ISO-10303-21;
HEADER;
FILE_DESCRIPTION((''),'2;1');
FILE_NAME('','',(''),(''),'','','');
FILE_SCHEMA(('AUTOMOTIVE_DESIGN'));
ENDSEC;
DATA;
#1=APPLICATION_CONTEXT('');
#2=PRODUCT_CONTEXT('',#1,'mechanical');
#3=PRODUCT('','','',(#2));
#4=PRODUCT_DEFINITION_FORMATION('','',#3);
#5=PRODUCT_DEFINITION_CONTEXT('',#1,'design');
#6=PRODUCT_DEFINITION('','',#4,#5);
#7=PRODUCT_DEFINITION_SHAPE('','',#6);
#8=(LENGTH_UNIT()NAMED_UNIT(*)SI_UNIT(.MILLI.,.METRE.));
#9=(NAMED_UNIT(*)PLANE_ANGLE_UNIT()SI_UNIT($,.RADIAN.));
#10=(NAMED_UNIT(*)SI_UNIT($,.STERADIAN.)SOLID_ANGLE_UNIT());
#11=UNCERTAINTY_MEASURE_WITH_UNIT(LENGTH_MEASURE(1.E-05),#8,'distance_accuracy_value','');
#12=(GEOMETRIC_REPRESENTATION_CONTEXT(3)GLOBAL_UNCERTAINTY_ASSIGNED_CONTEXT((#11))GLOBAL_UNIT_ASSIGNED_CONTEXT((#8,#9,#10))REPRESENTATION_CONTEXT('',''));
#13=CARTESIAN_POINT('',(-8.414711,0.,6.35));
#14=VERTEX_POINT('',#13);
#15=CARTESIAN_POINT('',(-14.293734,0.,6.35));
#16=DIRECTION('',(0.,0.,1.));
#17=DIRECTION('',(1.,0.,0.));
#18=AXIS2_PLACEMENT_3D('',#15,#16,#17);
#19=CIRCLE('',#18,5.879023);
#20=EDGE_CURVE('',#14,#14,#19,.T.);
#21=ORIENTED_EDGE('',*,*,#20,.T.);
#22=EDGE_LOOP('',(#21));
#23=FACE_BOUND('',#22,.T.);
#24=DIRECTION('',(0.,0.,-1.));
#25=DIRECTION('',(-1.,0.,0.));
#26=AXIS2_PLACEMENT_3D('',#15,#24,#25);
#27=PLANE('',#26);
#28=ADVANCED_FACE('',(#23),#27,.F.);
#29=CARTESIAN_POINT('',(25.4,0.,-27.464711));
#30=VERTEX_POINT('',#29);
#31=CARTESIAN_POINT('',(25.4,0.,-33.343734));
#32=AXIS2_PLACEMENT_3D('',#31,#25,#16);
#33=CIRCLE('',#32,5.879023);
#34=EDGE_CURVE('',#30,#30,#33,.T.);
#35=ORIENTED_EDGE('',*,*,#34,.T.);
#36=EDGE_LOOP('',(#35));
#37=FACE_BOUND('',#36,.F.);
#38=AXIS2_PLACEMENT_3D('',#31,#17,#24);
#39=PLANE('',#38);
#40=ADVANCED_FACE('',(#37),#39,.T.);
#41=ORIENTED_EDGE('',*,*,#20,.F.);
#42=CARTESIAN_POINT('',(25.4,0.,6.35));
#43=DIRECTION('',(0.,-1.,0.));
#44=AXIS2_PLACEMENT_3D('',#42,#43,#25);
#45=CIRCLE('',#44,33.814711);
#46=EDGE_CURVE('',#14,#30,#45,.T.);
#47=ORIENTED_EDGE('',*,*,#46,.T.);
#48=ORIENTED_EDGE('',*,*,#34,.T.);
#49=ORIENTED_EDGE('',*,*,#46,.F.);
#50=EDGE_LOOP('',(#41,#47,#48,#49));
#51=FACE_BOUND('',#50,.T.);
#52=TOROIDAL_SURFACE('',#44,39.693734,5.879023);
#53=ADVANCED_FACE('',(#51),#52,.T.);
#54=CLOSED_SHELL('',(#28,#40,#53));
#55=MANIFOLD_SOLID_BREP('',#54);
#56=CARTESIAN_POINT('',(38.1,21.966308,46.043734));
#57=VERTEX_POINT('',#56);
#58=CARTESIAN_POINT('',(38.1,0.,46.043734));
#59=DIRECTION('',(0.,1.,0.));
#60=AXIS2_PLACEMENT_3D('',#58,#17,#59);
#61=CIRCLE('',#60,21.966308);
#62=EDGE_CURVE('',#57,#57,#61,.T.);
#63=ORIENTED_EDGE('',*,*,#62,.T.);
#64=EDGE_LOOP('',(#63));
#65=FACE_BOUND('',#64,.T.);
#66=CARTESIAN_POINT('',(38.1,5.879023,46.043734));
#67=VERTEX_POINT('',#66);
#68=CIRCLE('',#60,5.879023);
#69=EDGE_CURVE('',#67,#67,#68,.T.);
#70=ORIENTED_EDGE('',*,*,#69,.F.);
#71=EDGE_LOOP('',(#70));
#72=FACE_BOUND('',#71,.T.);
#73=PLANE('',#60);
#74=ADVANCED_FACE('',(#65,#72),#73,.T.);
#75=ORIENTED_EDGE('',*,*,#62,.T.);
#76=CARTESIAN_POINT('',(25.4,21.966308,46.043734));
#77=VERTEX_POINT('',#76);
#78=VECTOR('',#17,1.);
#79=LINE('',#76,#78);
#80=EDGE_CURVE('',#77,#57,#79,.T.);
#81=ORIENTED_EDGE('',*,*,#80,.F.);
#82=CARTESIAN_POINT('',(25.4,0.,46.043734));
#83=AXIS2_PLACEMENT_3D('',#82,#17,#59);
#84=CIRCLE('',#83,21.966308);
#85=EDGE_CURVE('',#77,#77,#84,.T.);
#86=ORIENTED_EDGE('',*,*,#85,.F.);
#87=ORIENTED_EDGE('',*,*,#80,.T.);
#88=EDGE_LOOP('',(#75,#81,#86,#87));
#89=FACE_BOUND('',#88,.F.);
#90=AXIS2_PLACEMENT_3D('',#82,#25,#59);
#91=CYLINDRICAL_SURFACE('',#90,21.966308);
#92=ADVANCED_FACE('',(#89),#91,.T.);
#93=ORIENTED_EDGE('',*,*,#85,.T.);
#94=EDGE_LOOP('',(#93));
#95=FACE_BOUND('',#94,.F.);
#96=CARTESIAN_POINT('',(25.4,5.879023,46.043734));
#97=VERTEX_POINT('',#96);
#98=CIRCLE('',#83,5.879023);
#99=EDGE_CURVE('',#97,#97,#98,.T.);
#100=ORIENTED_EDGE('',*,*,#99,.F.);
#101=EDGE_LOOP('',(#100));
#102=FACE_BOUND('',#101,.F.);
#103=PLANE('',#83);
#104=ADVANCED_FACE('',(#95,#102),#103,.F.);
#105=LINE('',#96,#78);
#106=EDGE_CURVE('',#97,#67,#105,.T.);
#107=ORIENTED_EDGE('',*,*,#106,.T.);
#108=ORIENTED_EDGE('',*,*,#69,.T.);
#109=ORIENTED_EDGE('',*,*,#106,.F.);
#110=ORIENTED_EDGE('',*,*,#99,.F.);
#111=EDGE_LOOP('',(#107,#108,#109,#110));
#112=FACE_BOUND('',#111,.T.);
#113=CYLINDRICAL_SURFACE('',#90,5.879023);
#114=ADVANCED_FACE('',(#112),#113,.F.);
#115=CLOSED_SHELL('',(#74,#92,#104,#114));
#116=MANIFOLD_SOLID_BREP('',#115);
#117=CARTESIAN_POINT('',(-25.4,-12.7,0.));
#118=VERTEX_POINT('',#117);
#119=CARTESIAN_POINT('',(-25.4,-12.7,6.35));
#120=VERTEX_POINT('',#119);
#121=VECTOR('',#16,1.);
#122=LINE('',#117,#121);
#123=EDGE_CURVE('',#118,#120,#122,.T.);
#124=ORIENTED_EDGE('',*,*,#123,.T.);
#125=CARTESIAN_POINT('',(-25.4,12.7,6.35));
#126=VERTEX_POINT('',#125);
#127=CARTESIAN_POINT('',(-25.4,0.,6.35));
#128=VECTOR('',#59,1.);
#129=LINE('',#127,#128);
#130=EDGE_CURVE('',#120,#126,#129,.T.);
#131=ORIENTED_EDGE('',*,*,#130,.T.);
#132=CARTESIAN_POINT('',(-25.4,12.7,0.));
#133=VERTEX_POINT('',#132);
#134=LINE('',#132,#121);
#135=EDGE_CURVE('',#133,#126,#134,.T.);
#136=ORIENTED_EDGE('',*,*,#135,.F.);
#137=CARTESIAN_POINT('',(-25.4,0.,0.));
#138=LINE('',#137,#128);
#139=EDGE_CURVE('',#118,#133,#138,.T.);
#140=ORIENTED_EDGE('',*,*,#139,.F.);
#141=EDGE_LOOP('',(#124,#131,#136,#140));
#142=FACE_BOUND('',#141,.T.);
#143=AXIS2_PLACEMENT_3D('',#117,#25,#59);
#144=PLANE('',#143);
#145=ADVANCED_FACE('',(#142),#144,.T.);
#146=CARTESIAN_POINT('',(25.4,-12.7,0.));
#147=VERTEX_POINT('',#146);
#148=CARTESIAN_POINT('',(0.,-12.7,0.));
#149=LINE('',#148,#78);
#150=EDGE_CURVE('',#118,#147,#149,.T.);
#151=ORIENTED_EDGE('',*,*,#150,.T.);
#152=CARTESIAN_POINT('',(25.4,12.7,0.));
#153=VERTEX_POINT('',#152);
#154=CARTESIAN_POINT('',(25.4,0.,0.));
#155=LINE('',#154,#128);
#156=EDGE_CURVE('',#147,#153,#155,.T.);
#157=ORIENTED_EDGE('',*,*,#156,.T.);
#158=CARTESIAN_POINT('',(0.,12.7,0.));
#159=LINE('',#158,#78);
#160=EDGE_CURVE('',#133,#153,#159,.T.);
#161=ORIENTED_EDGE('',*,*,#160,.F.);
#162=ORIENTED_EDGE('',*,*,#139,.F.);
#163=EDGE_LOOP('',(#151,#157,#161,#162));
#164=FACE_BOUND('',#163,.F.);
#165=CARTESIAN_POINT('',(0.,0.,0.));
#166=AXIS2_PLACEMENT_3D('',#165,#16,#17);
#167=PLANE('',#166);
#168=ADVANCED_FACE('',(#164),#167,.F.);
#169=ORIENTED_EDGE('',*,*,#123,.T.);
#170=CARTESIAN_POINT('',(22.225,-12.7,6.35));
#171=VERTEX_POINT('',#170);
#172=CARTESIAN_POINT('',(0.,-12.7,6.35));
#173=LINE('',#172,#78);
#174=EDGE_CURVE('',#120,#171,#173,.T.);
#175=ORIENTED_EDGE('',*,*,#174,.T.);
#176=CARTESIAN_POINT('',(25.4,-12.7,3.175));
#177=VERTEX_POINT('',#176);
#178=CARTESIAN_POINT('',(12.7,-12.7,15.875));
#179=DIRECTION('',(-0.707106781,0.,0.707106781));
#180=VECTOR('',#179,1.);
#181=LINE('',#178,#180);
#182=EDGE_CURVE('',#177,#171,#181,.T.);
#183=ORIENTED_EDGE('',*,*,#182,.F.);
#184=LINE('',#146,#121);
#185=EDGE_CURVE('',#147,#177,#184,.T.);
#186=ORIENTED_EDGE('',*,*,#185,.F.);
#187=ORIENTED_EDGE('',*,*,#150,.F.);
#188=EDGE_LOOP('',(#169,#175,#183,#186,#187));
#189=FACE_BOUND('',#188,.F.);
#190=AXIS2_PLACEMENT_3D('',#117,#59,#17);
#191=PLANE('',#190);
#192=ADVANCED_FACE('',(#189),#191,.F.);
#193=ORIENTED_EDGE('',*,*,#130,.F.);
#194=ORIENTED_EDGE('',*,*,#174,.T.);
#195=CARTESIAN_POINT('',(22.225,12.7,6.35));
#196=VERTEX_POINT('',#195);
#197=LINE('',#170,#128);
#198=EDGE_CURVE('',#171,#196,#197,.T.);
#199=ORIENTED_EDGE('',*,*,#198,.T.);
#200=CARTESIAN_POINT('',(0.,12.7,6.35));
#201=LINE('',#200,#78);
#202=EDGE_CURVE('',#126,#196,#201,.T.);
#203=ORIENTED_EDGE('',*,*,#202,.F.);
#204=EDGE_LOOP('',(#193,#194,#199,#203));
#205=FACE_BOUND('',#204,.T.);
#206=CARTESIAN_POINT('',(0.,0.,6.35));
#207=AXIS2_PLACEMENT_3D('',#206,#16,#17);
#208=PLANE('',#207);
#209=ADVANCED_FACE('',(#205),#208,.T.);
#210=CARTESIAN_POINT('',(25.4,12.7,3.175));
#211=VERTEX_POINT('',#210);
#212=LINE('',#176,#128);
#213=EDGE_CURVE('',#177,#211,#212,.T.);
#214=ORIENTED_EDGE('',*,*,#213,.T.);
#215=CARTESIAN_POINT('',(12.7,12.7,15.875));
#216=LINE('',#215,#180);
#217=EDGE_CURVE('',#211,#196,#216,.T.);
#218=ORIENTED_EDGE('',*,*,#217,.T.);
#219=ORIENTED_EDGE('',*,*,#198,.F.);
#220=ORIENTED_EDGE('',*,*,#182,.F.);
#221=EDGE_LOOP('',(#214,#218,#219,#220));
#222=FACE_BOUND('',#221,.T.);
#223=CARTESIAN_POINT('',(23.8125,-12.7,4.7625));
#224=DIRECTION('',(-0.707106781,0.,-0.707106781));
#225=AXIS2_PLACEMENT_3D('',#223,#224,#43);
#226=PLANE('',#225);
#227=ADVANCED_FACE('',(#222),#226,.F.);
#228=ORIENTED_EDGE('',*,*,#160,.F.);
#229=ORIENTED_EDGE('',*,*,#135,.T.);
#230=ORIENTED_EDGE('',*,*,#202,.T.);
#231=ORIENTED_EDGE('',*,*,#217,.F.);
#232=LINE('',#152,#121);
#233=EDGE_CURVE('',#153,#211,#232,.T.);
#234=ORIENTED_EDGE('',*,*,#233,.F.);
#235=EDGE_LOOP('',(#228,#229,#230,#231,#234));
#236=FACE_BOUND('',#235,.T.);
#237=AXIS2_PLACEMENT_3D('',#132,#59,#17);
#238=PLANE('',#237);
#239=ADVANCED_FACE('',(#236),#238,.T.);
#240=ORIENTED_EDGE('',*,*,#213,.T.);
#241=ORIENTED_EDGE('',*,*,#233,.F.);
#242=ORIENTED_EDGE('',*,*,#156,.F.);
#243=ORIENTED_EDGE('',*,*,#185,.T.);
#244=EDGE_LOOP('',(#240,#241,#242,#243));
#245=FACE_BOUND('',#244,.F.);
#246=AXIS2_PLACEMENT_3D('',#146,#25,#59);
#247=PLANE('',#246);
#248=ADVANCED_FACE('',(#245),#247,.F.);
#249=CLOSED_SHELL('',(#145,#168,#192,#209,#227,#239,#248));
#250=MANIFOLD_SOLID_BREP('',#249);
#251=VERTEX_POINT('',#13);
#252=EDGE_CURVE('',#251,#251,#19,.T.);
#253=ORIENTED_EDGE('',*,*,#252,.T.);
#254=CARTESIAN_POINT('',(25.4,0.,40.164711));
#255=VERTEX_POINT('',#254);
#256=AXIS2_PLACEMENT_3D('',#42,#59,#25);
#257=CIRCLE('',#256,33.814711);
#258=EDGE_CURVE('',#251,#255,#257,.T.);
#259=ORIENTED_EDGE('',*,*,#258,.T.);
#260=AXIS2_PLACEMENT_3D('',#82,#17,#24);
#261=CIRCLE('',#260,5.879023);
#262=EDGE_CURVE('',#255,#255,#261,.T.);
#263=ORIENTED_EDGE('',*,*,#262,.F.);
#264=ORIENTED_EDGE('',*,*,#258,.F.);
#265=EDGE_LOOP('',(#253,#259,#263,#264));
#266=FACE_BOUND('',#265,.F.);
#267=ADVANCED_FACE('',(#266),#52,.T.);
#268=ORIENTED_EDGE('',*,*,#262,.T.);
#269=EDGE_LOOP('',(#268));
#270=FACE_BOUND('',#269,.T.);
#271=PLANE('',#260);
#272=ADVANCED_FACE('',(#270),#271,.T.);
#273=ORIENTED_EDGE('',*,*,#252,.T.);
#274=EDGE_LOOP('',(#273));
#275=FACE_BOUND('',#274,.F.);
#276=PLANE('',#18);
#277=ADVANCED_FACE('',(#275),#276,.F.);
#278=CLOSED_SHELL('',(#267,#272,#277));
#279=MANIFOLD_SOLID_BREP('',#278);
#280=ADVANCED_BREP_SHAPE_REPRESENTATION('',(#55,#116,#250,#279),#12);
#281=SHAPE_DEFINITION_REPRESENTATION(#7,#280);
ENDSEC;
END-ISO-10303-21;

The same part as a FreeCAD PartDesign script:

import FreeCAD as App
import Part
import Sketcher
Q = App.Units.Quantity


def edges_at(feature, points):
    """Names of the edges that pass closest to the given points."""
    edges = feature.Shape.Edges
    near = lambda p: min(range(len(edges)), key=lambda i: edges[i].distToShape(Part.Vertex(*p))[0])
    return sorted({f"Edge{near(p) + 1}" for p in points})

doc = App.newDocument("Part")
body = doc.addObject("PartDesign::Body", "Body")

# Sketch on XY plane
sketch1 = body.newObject("Sketcher::SketchObject", "Sketch")
sketch1.AttachmentSupport = (doc.getObject("XY_Plane"), [""])
sketch1.MapMode = "FlatFace"
sketch1.addGeometry(Part.LineSegment(App.Vector(-25, 13, 0), App.Vector(-25, -13, 0)), False)
sketch1.addGeometry(Part.LineSegment(App.Vector(-25, -13, 0), App.Vector(25, -13, 0)), False)
sketch1.addGeometry(Part.LineSegment(App.Vector(25, -13, 0), App.Vector(25, 13, 0)), False)
sketch1.addGeometry(Part.LineSegment(App.Vector(25, 13, 0), App.Vector(-25, 13, 0)), False)
sketch1.addConstraint(Sketcher.Constraint("Coincident", 0, 2, 1, 1))
sketch1.addConstraint(Sketcher.Constraint("Coincident", 1, 2, 2, 1))
sketch1.addConstraint(Sketcher.Constraint("Coincident", 2, 2, 3, 1))
sketch1.addConstraint(Sketcher.Constraint("Coincident", 3, 2, 0, 1))
sketch1.addConstraint(Sketcher.Constraint("Vertical", 0))
sketch1.addConstraint(Sketcher.Constraint("Horizontal", 1))
sketch1.addConstraint(Sketcher.Constraint("Vertical", 2))
sketch1.addConstraint(Sketcher.Constraint("Horizontal", 3))
sketch1.addConstraint(Sketcher.Constraint("Symmetric", 0, 2, 2, 2, -1, 1))
sketch1.addConstraint(Sketcher.Constraint("DistanceX", 1, 1, 1, 2, Q("2 in")))
sketch1.addConstraint(Sketcher.Constraint("DistanceY", 0, 2, 0, 1, Q("1 in")))
pad1 = body.newObject("PartDesign::Pad", "Pad")
pad1.Profile = sketch1
pad1.Length = Q("0.25 in")
doc.recompute()

chamfer = body.newObject("PartDesign::Chamfer", "Chamfer")
chamfer.Base = (pad1, edges_at(pad1, [(25.4, 0, 6.35)]))
chamfer.Size = Q("0.125 in")
body2 = doc.addObject("PartDesign::Body", "Body001")

# Sketch on XY plane
sketch2 = body2.newObject("Sketcher::SketchObject", "Sketch001")
sketch2.AttachmentSupport = (doc.getObject("XY_Plane001"), [""])
sketch2.MapMode = "FlatFace"
sketch2.AttachmentOffset = App.Placement(App.Vector(0, 0, 0.25 * 25.4), App.Rotation())
sketch2.addGeometry(Part.Circle(App.Vector(-14, 0, 0), App.Vector(0, 0, 1), 6), False)
sketch2.addGeometry(Part.LineSegment(App.Vector(25, 0, 0), App.Vector(25, 10, 0)), True)  # axis
sketch2.addConstraint(Sketcher.Constraint("Vertical", 1))
sketch2.addConstraint(Sketcher.Constraint("PointOnObject", 0, 3, -1))
sketch2.addConstraint(Sketcher.Constraint("PointOnObject", 1, 1, -1))
sketch2.addConstraint(Sketcher.Constraint("DistanceX", -1, 1, 1, 1, Q("1 in")))
sketch2.addConstraint(Sketcher.Constraint("Diameter", 0, Q("11.758046 mm")))
sketch2.addConstraint(Sketcher.Constraint("DistanceY", 1, 1, 1, 2, Q("10 mm")))
sketch2.addConstraint(Sketcher.Constraint("DistanceX", 0, 3, -1, 1, Q("14.293734 mm")))
revolution = body2.newObject("PartDesign::Revolution", "Revolution")
revolution.Profile = sketch2
revolution.ReferenceAxis = (sketch2, ["Axis0"])
revolution.Angle = 90
body3 = doc.addObject("PartDesign::Body", "Body002")

# Sketch on YZ plane
sketch3 = body3.newObject("Sketcher::SketchObject", "Sketch002")
sketch3.AttachmentSupport = (doc.getObject("YZ_Plane002"), [""])
sketch3.MapMode = "FlatFace"
sketch3.AttachmentOffset = App.Placement(App.Vector(0, 0, 1 * 25.4), App.Rotation())
sketch3.addGeometry(Part.Circle(App.Vector(0, 46, 0), App.Vector(0, 0, 1), 22), False)
sketch3.addGeometry(Part.Circle(App.Vector(0, 46, 0), App.Vector(0, 0, 1), 6), False)
sketch3.addConstraint(Sketcher.Constraint("Coincident", 1, 3, 0, 3))
sketch3.addConstraint(Sketcher.Constraint("PointOnObject", 0, 3, -2))
sketch3.addConstraint(Sketcher.Constraint("Diameter", 0, Q("43.932617 mm")))
sketch3.addConstraint(Sketcher.Constraint("Diameter", 1, Q("11.758046 mm")))
sketch3.addConstraint(Sketcher.Constraint("DistanceY", -1, 1, 0, 3, Q("46.043734 mm")))
pad2 = body3.newObject("PartDesign::Pad", "Pad001")
pad2.Profile = sketch3
pad2.Length = Q("0.5 in")
body4 = doc.addObject("PartDesign::Body", "Body003")
doc.recompute()

mirroring = doc.addObject("Part::Mirroring", "Mirroring")
mirroring.Source = body2
mirroring.Base = App.Vector(0, 0, 6.35)
mirroring.Normal = App.Vector(0, 0, 1)
body4.BaseFeature = mirroring
doc.recompute()
mirroring.Visibility = False

doc.recompute()
